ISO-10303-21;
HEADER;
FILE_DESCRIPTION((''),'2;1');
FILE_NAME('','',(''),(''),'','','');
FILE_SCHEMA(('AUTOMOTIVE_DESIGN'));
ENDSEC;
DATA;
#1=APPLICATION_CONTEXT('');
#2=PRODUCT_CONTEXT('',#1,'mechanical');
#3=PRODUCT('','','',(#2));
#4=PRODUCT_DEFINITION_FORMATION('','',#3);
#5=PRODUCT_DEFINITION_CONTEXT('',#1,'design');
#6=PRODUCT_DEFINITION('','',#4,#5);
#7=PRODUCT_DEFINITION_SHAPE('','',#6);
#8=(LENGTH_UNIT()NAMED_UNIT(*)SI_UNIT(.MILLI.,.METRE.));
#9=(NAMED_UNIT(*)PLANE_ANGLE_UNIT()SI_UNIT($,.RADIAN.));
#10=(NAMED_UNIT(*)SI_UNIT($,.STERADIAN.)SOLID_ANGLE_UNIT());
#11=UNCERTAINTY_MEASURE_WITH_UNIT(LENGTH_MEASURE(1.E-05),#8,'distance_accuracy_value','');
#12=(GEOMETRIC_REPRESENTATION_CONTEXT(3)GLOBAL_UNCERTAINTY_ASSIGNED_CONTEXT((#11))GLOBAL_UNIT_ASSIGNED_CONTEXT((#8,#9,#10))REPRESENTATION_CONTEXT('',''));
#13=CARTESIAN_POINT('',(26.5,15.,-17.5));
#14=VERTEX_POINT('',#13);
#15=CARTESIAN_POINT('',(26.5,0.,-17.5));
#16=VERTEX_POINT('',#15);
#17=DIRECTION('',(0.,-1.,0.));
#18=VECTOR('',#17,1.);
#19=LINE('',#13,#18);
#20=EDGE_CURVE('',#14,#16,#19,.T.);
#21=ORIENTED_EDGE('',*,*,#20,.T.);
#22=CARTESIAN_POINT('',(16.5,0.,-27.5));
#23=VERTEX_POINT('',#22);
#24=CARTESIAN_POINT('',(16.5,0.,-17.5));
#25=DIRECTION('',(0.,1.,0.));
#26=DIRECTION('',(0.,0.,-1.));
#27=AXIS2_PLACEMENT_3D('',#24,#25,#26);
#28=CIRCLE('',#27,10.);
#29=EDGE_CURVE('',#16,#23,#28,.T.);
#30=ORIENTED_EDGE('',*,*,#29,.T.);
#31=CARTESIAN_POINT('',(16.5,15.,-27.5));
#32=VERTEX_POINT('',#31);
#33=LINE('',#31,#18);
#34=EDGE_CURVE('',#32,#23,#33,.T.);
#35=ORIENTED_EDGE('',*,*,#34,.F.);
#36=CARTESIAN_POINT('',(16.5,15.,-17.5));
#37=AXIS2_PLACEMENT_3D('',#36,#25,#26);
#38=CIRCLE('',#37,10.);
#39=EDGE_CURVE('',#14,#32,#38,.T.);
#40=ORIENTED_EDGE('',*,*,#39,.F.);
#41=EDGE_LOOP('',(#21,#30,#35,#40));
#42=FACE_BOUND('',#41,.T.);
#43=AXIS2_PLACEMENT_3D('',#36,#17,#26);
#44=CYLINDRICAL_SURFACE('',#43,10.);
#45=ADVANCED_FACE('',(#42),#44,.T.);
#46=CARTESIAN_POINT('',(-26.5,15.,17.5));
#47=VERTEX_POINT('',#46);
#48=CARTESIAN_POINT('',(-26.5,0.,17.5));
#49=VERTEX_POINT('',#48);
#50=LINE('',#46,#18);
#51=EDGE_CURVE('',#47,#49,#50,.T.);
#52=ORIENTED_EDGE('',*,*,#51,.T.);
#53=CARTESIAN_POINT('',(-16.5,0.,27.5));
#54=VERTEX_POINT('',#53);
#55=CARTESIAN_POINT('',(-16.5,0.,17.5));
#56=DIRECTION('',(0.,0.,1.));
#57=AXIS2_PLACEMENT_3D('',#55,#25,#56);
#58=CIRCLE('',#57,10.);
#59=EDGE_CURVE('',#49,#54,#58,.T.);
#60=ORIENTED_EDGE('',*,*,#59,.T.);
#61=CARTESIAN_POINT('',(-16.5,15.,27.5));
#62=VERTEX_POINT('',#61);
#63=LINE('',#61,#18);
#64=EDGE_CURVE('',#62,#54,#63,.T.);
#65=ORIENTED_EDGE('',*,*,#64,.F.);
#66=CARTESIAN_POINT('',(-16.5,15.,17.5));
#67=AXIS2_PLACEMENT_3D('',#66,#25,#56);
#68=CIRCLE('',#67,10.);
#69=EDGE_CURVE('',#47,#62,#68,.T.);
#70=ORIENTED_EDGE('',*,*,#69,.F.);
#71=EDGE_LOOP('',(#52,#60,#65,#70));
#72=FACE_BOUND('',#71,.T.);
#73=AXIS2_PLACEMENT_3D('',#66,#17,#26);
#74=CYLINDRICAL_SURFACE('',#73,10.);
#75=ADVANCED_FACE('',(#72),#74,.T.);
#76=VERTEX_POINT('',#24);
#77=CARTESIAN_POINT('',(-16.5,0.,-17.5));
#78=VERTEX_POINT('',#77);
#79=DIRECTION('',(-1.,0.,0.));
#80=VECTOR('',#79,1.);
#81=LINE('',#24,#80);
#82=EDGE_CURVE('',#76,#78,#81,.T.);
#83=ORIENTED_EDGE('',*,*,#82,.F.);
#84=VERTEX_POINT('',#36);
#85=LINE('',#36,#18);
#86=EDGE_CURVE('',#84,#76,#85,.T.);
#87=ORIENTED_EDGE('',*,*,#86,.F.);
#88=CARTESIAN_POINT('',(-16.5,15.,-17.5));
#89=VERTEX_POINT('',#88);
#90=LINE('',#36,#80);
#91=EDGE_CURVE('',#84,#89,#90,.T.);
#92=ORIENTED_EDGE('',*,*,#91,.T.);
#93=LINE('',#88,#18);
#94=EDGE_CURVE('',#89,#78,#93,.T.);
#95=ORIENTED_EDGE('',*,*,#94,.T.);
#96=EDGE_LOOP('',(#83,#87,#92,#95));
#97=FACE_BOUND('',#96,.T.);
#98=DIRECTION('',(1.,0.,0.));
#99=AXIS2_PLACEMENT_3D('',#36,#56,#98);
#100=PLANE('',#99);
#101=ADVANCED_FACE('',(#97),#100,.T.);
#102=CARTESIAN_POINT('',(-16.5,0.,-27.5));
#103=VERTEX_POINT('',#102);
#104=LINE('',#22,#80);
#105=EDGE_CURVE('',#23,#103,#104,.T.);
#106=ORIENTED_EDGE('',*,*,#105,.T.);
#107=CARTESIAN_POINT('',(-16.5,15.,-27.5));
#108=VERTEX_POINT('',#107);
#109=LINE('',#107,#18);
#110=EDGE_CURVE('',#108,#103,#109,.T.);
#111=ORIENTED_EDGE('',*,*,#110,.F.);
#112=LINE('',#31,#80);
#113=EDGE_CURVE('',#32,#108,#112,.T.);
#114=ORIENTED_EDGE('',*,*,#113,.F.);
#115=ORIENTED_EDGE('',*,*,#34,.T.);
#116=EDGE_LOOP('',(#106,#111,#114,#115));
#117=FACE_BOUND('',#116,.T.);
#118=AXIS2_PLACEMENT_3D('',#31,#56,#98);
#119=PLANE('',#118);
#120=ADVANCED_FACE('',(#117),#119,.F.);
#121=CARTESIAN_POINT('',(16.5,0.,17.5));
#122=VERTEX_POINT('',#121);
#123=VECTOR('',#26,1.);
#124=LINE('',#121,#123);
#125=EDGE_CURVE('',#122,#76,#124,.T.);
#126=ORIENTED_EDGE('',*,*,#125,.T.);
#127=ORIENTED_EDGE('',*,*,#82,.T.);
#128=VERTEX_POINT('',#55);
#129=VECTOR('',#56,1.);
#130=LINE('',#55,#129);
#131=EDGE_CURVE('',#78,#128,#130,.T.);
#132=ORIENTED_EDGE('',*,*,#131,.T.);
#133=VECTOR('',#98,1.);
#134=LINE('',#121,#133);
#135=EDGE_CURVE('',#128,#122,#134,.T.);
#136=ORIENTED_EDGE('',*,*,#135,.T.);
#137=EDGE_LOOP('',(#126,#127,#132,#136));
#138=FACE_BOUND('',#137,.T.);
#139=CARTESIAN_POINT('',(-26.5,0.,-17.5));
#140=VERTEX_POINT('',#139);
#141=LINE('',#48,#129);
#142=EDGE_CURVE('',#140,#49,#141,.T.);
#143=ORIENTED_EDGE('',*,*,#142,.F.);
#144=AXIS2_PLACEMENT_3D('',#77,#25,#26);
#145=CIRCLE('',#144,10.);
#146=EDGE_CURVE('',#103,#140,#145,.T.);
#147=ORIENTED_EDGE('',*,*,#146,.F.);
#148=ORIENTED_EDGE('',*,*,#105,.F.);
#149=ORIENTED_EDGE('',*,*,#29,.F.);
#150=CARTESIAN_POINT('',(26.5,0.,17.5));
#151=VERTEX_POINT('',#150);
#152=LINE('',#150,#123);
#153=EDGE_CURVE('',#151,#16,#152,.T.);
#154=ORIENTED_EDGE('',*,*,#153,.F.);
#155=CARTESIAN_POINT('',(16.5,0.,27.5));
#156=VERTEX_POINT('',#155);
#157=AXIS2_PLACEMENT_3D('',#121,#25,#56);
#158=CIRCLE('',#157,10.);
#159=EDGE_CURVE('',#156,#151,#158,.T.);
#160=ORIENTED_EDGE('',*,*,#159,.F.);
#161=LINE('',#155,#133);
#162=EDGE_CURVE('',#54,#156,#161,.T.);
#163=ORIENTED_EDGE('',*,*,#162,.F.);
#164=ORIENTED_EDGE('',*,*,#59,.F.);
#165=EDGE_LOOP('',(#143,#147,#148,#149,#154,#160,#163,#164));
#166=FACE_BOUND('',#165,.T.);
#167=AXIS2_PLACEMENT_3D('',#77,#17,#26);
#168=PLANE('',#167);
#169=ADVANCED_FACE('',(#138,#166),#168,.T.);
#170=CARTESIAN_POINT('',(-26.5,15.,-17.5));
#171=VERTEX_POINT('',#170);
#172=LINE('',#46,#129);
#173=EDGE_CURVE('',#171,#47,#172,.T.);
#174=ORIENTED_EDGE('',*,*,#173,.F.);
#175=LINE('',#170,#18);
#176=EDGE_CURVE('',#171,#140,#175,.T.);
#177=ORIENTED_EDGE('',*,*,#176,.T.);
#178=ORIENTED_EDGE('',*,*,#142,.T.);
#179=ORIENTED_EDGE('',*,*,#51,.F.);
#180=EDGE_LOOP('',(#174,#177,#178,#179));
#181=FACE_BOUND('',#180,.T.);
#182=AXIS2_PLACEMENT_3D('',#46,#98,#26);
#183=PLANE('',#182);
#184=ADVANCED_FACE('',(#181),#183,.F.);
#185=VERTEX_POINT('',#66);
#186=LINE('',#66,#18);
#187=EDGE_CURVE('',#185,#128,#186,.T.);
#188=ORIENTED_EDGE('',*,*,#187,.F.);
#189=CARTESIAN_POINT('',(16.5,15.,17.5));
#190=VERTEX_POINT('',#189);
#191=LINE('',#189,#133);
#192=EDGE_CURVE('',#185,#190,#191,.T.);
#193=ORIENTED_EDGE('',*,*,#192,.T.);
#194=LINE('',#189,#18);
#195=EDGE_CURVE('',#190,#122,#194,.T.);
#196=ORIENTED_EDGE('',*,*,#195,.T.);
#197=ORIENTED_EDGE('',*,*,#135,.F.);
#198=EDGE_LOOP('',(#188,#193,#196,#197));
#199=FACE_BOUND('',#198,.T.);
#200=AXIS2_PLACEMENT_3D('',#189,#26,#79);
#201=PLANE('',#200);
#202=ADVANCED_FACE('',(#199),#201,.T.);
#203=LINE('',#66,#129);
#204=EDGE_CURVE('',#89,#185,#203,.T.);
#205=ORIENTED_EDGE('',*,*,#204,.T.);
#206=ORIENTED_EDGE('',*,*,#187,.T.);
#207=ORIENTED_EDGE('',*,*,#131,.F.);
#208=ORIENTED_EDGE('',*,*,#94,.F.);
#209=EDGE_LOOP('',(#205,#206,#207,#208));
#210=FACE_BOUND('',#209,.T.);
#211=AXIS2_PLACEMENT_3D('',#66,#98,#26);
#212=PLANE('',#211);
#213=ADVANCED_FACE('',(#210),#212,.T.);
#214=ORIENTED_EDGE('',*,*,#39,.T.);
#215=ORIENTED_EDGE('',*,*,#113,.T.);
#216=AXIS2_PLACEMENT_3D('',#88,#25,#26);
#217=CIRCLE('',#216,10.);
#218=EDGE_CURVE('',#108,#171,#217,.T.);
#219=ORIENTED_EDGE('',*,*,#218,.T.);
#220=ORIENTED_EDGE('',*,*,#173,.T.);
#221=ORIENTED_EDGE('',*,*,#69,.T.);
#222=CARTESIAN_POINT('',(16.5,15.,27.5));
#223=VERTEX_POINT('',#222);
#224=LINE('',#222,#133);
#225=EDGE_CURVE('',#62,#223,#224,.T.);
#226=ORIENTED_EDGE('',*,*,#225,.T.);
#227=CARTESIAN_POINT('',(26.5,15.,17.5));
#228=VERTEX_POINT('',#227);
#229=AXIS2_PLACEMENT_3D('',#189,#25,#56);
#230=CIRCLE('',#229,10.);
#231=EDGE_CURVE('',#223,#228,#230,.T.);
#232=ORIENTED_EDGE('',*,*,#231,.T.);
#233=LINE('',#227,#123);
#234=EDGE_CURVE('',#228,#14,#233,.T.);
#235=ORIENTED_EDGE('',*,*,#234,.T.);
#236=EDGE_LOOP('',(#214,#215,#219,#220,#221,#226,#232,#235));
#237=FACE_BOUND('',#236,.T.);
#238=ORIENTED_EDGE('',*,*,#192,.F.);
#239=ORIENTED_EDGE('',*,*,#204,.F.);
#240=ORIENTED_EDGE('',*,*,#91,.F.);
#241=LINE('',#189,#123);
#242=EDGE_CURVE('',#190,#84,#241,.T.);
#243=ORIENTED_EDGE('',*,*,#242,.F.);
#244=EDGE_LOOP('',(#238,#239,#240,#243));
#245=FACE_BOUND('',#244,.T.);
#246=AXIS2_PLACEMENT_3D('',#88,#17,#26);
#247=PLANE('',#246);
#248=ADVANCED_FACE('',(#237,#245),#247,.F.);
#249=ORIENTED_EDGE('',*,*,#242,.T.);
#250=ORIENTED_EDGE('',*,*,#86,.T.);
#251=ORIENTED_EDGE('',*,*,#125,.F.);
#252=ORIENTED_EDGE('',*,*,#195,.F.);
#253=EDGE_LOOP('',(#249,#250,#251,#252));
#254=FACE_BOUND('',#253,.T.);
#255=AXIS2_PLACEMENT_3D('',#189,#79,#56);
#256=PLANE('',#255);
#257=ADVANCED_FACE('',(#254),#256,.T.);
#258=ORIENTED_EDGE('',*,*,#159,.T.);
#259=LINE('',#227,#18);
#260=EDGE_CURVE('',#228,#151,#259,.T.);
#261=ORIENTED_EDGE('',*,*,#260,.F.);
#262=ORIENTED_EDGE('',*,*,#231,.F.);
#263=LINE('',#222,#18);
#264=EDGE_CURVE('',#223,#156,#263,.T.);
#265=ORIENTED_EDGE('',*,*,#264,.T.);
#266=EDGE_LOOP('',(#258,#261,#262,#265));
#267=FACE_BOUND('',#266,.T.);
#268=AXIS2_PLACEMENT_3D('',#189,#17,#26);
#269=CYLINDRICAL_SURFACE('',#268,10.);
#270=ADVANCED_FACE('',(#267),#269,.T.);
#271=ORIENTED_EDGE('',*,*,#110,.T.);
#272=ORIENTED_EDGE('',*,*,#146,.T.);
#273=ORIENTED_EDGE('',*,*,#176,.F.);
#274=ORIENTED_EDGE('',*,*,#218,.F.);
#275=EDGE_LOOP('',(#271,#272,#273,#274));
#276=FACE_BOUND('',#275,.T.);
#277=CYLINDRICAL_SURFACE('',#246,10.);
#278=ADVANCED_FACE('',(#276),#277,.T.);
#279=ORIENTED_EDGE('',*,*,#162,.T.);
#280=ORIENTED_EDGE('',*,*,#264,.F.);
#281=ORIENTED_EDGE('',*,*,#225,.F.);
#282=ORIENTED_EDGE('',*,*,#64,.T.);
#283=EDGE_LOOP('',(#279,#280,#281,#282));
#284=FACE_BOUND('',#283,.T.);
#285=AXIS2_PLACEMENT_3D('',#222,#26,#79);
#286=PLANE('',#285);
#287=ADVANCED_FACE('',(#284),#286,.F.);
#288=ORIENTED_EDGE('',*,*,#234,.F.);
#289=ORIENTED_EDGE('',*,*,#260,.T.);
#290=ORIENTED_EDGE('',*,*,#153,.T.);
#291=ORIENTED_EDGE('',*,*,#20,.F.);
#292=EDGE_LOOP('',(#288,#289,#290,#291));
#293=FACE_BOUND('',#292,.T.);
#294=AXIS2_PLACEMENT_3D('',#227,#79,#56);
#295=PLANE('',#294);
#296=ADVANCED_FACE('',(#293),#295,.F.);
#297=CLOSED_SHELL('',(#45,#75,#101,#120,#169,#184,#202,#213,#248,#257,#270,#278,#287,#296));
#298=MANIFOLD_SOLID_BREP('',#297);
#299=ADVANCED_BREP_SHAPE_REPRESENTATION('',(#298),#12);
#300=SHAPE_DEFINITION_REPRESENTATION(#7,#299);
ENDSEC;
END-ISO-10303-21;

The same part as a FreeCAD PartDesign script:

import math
import FreeCAD as App
import Part
import Sketcher
from FreeCAD import Vector


def add_polygon(sketch, points):
    """Adds a closed chain of lines whose ends are joined by coincident constraints."""
    first, n = sketch.GeometryCount, len(points)
    for a, b in zip(points, points[1:] + points[:1]):
        sketch.addGeometry(Part.LineSegment(App.Vector(*a, 0), App.Vector(*b, 0)), False)
    for i in range(n):
        sketch.addConstraint(Sketcher.Constraint("Coincident", first + i, 2, first + (i + 1) % n, 1))

doc = App.newDocument("Part")
body = doc.addObject("PartDesign::Body", "Body")

sketch1 = body.newObject("Sketcher::SketchObject", "Sketch")
sketch1.AttachmentSupport = (doc.getObject("XZ_Plane"), [""])
sketch1.MapMode = "FlatFace"
sketch1.addGeometry(Part.LineSegment(Vector(-16, 28, 0), Vector(16, 28, 0)), False)
sketch1.addGeometry(Part.ArcOfCircle(Part.Circle(Vector(16, 18, 0), Vector(0, 0, 1), 10), math.radians(0), math.radians(90)), False)
sketch1.addGeometry(Part.LineSegment(Vector(26, 18, 0), Vector(26, -18, 0)), False)
sketch1.addGeometry(Part.ArcOfCircle(Part.Circle(Vector(16, -18, 0), Vector(0, 0, 1), 10), math.radians(-90), math.radians(0)), False)
sketch1.addGeometry(Part.LineSegment(Vector(16, -28, 0), Vector(-16, -28, 0)), False)
sketch1.addGeometry(Part.ArcOfCircle(Part.Circle(Vector(-16, -18, 0), Vector(0, 0, 1), 10), math.radians(180), math.radians(270)), False)
sketch1.addGeometry(Part.LineSegment(Vector(-26, -18, 0), Vector(-26, 18, 0)), False)
sketch1.addGeometry(Part.ArcOfCircle(Part.Circle(Vector(-16, 18, 0), Vector(0, 0, 1), 10), math.radians(90), math.radians(180)), False)
add_polygon(sketch1, [(-16, 18), (-16, -18), (16, -18), (16, 18)])
sketch1.addConstraint(Sketcher.Constraint("Tangent", 0, 2, 1, 2))
sketch1.addConstraint(Sketcher.Constraint("Tangent", 1, 1, 2, 1))
sketch1.addConstraint(Sketcher.Constraint("Tangent", 2, 2, 3, 2))
sketch1.addConstraint(Sketcher.Constraint("Tangent", 3, 1, 4, 1))
sketch1.addConstraint(Sketcher.Constraint("Tangent", 4, 2, 5, 2))
sketch1.addConstraint(Sketcher.Constraint("Tangent", 5, 1, 6, 1))
sketch1.addConstraint(Sketcher.Constraint("Tangent", 6, 2, 7, 2))
sketch1.addConstraint(Sketcher.Constraint("Tangent", 7, 1, 0, 1))
sketch1.addConstraint(Sketcher.Constraint("Horizontal", 0))
sketch1.addConstraint(Sketcher.Constraint("Vertical", 2))
sketch1.addConstraint(Sketcher.Constraint("Horizontal", 4))
sketch1.addConstraint(Sketcher.Constraint("Vertical", 6))
sketch1.addConstraint(Sketcher.Constraint("Vertical", 8))
sketch1.addConstraint(Sketcher.Constraint("Horizontal", 9))
sketch1.addConstraint(Sketcher.Constraint("Vertical", 10))
sketch1.addConstraint(Sketcher.Constraint("Horizontal", 11))
sketch1.addConstraint(Sketcher.Constraint("Coincident", 8, 2, 5, 3))
sketch1.addConstraint(Sketcher.Constraint("Coincident", 9, 2, 3, 3))
sketch1.addConstraint(Sketcher.Constraint("Coincident", 10, 2, 1, 3))
sketch1.addConstraint(Sketcher.Constraint("Equal", 5, 7))
sketch1.addConstraint(Sketcher.Constraint("Symmetric", 1, 3, 5, 3, -1, 1))
sketch1.addConstraint(Sketcher.Constraint("Radius", 1, 10.0))
sketch1.addConstraint(Sketcher.Constraint("DistanceX", 0, 1, 0, 2, 33.0))
sketch1.addConstraint(Sketcher.Constraint("DistanceY", 2, 2, 2, 1, 35.0))
pad1 = body.newObject("PartDesign::Pad", "Pad")
pad1.Profile = sketch1
pad1.Length = 15
pad1.Reversed = True

doc.recompute()
